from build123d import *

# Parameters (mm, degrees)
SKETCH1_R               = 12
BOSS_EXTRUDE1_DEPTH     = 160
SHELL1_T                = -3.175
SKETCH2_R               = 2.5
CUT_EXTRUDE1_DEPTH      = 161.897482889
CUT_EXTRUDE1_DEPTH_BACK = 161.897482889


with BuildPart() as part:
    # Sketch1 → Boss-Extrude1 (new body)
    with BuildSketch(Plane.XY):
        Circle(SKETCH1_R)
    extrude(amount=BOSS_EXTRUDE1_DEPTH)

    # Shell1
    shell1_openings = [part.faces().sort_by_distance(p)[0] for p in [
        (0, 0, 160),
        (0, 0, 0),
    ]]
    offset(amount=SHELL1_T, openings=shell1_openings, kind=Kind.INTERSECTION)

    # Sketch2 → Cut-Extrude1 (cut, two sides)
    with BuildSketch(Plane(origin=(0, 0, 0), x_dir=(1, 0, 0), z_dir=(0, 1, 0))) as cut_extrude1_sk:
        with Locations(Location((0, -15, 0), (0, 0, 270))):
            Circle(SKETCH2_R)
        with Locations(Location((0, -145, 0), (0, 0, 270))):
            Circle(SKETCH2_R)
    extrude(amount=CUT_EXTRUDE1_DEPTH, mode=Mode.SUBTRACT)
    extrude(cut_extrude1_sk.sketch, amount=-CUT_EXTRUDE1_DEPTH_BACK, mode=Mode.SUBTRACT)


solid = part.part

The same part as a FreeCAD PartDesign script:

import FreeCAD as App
import Part
import Sketcher
Q = App.Units.Quantity


def faces_at(feature, points):
    """Names of the faces that lie closest to the given points."""
    faces = feature.Shape.Faces
    near = lambda p: min(range(len(faces)), key=lambda i: faces[i].distToShape(Part.Vertex(*p))[0])
    return sorted({f"Face{near(p) + 1}" for p in points})

doc = App.newDocument("Part")
body = doc.addObject("PartDesign::Body", "Body")

# Sketch on XY plane
sketch1 = body.newObject("Sketcher::SketchObject", "Sketch")
sketch1.AttachmentSupport = (doc.getObject("XY_Plane"), [""])
sketch1.MapMode = "FlatFace"
sketch1.addGeometry(Part.Circle(App.Vector(0, 0, 0), App.Vector(0, 0, 1), 12), False)
sketch1.addConstraint(Sketcher.Constraint("Coincident", 0, 3, -1, 1))
sketch1.addConstraint(Sketcher.Constraint("Diameter", 0, Q("24 mm")))
pad1 = body.newObject("PartDesign::Pad", "Pad")
pad1.Profile = sketch1
pad1.Length = 160
doc.recompute()

thickness = body.newObject("PartDesign::Thickness", "Thickness")
thickness.Base = (pad1, faces_at(pad1, [(0, 0, 160), (0, 0, 0)]))
thickness.Value = 3.175
thickness.Reversed = True
thickness.Join = "Intersection"

# Sketch on XZ plane
sketch2 = body.newObject("Sketcher::SketchObject", "Sketch001")
sketch2.AttachmentSupport = (doc.getObject("XZ_Plane"), [""])
sketch2.MapMode = "FlatFace"
sketch2.addGeometry(Part.Circle(App.Vector(0, 15, 0), App.Vector(0, 0, 1), 2.5), False)
sketch2.addGeometry(Part.Circle(App.Vector(0, 145, 0), App.Vector(0, 0, 1), 2.5), False)
sketch2.addConstraint(Sketcher.Constraint("Equal", 0, 1))
sketch2.addConstraint(Sketcher.Constraint("PointOnObject", 0, 3, -2))
sketch2.addConstraint(Sketcher.Constraint("PointOnObject", 1, 3, -2))
sketch2.addConstraint(Sketcher.Constraint("Diameter", 0, Q("5 mm")))
sketch2.addConstraint(Sketcher.Constraint("DistanceY", -1, 1, 0, 3, Q("15 mm")))
sketch2.addConstraint(Sketcher.Constraint("DistanceY", -1, 1, 1, 3, Q("145 mm")))
pocket1 = body.newObject("PartDesign::Pocket", "Pocket")
pocket1.Profile = sketch2
pocket1.Type = "ThroughAll"
pocket1.Midplane = True

doc.recompute()
